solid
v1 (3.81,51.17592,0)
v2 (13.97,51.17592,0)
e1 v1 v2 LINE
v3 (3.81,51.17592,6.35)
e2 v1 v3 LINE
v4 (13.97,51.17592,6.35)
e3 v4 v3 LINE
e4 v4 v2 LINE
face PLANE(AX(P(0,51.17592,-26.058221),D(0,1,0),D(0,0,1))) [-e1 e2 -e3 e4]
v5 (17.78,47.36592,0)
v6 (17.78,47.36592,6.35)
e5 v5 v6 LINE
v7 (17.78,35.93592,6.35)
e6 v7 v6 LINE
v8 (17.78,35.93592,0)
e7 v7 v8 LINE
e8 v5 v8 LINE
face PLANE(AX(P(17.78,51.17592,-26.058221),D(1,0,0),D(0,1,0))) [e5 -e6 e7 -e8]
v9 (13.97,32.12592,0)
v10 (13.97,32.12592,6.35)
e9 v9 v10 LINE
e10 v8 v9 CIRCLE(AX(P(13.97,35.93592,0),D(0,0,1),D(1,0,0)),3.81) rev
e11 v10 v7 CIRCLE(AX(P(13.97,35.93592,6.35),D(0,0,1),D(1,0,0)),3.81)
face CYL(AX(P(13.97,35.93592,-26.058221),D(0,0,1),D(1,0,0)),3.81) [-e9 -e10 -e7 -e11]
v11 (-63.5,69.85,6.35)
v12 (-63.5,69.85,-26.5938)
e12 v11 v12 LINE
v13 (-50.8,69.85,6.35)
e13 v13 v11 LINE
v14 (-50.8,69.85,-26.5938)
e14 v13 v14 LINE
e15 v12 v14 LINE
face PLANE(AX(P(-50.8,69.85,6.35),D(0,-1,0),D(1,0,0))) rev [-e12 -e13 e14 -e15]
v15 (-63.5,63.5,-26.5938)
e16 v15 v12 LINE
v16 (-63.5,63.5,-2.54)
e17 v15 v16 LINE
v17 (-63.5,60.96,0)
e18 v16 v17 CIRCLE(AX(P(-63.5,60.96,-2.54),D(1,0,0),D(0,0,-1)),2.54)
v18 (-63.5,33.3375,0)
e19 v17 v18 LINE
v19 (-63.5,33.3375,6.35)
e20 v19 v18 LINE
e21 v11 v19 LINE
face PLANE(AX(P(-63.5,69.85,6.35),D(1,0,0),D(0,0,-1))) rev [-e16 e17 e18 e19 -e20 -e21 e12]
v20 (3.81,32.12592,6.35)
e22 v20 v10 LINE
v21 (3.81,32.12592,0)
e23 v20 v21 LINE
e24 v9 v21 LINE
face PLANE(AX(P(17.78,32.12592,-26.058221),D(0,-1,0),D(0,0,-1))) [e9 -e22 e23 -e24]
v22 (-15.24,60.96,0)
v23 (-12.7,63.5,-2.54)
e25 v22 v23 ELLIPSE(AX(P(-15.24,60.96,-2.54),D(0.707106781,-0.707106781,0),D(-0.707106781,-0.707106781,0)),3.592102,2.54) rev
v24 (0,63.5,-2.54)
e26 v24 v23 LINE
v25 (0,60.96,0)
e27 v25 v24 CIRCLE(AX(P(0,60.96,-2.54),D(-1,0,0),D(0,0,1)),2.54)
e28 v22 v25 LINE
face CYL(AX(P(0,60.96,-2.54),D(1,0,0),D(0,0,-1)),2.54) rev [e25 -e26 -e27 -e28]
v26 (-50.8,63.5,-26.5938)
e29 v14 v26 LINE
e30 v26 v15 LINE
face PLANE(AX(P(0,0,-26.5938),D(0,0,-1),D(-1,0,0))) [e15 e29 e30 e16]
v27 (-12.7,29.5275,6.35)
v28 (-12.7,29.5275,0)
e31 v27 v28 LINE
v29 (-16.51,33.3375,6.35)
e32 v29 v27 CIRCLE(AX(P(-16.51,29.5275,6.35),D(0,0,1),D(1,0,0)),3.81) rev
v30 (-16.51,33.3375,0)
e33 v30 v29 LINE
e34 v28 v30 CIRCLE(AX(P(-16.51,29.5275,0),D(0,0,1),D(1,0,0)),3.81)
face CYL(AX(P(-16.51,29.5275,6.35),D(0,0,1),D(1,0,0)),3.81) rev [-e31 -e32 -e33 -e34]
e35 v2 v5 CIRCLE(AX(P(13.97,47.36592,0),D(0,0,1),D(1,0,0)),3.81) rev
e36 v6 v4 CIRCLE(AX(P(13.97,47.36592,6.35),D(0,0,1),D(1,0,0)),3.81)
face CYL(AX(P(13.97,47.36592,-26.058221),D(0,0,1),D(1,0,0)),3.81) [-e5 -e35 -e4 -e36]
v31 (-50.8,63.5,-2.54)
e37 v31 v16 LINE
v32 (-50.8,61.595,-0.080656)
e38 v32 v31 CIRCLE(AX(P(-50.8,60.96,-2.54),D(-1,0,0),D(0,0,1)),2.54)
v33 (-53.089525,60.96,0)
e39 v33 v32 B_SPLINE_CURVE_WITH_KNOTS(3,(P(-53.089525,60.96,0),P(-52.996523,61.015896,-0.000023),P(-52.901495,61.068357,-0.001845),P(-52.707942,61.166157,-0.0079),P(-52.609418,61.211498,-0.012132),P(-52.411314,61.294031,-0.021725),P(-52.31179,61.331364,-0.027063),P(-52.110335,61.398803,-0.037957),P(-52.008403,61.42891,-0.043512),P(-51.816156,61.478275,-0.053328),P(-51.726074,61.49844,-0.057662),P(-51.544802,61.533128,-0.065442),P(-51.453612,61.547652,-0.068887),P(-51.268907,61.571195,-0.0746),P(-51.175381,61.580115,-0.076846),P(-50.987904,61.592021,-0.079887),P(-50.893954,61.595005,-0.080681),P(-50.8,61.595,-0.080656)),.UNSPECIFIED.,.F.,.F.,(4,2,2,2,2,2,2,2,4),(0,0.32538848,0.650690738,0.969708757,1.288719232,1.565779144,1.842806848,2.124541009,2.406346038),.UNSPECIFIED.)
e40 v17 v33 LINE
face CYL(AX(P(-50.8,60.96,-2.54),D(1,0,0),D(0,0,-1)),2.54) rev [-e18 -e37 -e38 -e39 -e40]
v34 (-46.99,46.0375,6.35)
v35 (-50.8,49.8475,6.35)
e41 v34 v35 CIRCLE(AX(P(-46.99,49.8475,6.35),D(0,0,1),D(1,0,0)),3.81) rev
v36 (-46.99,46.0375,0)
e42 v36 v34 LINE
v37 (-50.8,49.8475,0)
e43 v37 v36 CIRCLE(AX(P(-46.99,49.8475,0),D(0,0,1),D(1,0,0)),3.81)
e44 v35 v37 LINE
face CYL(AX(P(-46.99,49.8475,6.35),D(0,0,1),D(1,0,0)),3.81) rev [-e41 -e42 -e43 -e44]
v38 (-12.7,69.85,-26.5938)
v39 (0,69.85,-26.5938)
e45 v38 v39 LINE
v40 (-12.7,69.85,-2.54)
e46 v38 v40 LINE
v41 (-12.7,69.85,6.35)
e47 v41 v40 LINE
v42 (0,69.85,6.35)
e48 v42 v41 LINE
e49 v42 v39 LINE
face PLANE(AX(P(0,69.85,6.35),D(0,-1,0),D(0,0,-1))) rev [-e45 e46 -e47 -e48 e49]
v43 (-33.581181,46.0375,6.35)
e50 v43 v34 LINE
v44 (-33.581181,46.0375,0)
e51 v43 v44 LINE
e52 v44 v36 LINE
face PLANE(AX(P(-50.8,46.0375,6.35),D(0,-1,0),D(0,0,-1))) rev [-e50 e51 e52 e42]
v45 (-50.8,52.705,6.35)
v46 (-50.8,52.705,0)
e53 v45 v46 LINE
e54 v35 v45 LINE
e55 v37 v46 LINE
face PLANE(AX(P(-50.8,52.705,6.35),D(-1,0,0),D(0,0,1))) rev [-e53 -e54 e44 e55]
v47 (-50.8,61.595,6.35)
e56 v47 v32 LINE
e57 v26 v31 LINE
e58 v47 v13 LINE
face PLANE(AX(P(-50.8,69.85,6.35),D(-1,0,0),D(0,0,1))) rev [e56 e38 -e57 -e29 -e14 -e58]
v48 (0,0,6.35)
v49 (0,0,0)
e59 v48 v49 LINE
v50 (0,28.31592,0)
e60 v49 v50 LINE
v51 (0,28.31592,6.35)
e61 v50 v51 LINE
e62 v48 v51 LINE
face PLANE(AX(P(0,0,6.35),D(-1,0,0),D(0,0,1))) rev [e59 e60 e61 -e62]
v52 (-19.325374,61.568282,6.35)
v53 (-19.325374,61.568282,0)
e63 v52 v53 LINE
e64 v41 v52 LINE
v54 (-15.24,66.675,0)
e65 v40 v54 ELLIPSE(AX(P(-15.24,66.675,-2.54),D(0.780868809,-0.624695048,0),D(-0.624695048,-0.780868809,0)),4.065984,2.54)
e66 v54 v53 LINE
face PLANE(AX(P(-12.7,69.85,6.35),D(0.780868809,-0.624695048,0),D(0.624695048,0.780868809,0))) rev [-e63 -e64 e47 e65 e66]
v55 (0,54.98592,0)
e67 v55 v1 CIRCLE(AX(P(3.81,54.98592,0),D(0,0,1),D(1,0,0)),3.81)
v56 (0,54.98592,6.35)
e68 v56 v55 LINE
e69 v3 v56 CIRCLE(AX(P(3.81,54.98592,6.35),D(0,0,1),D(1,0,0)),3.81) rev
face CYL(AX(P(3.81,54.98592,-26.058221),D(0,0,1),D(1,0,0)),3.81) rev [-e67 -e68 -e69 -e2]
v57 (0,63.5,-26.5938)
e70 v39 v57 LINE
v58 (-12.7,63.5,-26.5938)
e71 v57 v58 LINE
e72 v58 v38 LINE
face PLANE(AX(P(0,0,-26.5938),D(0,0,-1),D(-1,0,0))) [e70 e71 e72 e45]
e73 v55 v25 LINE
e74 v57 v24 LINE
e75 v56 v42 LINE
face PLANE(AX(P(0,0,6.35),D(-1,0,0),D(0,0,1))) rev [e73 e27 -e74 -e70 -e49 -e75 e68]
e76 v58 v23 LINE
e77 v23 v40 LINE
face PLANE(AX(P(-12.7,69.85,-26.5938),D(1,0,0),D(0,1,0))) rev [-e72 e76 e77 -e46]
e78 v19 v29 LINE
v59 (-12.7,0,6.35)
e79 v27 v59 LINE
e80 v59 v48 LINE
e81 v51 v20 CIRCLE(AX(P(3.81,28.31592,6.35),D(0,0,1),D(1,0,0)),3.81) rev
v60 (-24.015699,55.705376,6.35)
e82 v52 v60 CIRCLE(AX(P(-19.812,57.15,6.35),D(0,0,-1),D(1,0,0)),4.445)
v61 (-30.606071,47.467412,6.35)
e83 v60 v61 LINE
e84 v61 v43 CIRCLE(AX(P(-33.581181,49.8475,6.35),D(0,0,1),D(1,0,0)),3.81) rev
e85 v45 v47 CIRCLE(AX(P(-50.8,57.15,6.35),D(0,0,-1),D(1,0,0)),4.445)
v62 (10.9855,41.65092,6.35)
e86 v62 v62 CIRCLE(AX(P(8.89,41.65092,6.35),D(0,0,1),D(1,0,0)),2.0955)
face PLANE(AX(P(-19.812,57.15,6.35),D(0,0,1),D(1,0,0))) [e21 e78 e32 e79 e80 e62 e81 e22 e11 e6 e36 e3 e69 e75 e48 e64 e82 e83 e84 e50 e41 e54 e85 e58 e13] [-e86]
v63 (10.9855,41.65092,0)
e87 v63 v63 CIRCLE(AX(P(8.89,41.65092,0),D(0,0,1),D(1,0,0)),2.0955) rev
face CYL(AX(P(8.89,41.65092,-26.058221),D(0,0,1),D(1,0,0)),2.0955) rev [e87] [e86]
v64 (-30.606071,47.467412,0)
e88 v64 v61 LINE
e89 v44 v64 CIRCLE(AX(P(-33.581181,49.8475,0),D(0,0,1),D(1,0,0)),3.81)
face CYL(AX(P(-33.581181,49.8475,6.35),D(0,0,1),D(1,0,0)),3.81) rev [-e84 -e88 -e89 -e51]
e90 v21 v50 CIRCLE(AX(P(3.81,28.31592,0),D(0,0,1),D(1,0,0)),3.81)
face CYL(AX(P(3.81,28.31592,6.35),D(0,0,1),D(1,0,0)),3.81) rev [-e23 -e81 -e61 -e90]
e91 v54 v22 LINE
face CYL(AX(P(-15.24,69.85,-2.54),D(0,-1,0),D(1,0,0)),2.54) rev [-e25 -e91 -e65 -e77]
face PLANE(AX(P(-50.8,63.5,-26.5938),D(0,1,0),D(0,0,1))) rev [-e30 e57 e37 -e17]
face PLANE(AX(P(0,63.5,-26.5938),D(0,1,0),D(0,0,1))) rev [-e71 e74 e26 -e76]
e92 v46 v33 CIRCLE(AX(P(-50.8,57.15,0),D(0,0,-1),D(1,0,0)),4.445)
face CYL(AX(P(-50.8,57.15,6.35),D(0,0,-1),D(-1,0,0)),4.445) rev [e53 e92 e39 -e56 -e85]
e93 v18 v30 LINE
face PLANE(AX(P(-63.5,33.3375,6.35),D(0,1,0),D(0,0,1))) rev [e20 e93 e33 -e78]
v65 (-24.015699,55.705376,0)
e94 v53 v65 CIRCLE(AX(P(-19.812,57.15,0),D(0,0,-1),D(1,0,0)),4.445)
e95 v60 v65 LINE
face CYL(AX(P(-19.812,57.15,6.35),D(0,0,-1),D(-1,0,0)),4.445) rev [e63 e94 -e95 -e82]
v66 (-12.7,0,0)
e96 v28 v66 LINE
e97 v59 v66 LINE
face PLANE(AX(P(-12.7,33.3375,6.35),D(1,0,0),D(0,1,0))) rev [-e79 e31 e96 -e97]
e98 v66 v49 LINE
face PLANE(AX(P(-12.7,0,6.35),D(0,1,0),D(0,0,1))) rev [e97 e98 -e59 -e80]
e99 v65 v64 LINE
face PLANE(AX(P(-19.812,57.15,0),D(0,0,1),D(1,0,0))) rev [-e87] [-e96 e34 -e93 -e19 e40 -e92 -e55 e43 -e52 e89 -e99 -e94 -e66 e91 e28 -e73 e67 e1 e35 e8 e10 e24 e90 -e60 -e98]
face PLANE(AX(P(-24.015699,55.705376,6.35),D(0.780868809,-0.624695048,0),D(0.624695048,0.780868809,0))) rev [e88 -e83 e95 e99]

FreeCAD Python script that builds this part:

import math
import FreeCAD as App
import Part
import Sketcher
Q = App.Units.Quantity


def edges_at(feature, points):
    """Names of the edges that pass closest to the given points."""
    edges = feature.Shape.Edges
    near = lambda p: min(range(len(edges)), key=lambda i: edges[i].distToShape(Part.Vertex(*p))[0])
    return sorted({f"Edge{near(p) + 1}" for p in points})


def add_polygon(sketch, points):
    """Adds a closed chain of lines whose ends are joined by coincident constraints."""
    first, n = sketch.GeometryCount, len(points)
    for a, b in zip(points, points[1:] + points[:1]):
        sketch.addGeometry(Part.LineSegment(App.Vector(*a, 0), App.Vector(*b, 0)), False)
    for i in range(n):
        sketch.addConstraint(Sketcher.Constraint("Coincident", first + i, 2, first + (i + 1) % n, 1))

doc = App.newDocument("Part")
body = doc.addObject("PartDesign::Body", "Body")

# Sketch on XY plane
sketch1 = doc.addObject("Sketcher::SketchObject", "Sketch")
body.addObject(sketch1)
sketch1.AttachmentSupport = (doc.XY_Plane, [""])
sketch1.MapMode = "FlatFace"
sketch1.addGeometry(Part.LineSegment(App.Vector(0, 0, 0), App.Vector(0, 69.8, 0)), False)
sketch1.addGeometry(Part.LineSegment(App.Vector(0, 69.8, 0), App.Vector(-12.7, 69.8, 0)), False)
sketch1.addGeometry(Part.LineSegment(App.Vector(-12.7, 69.8, 0), App.Vector(-19.3, 61.6, 0)), False)
sketch1.addGeometry(Part.ArcOfCircle(Part.Circle(App.Vector(-19.8, 57.1, 0), App.Vector(0, 0, 1), 4.4), math.radians(-161), math.radians(84)), False)
sketch1.addGeometry(Part.LineSegment(App.Vector(-24, 55.7, 0), App.Vector(-31.8, 46, 0)), False)
sketch1.addGeometry(Part.LineSegment(App.Vector(-31.8, 46, 0), App.Vector(-50.8, 46, 0)), False)
sketch1.addGeometry(Part.LineSegment(App.Vector(-50.8, 46, 0), App.Vector(-50.8, 52.7, 0)), False)
sketch1.addGeometry(Part.ArcOfCircle(Part.Circle(App.Vector(-50.8, 57.1, 0), App.Vector(0, 0, 1), 4.4), math.radians(90), math.radians(270)), False)
sketch1.addGeometry(Part.LineSegment(App.Vector(-50.8, 61.6, 0), App.Vector(-50.8, 69.8, 0)), False)
sketch1.addGeometry(Part.LineSegment(App.Vector(-50.8, 69.8, 0), App.Vector(-63.5, 69.8, 0)), False)
sketch1.addGeometry(Part.LineSegment(App.Vector(-63.5, 69.8, 0), App.Vector(-63.5, 33.3, 0)), False)
sketch1.addGeometry(Part.LineSegment(App.Vector(-63.5, 33.3, 0), App.Vector(-12.7, 33.3, 0)), False)
sketch1.addGeometry(Part.LineSegment(App.Vector(-12.7, 33.3, 0), App.Vector(-12.7, 0, 0)), False)
sketch1.addGeometry(Part.LineSegment(App.Vector(-12.7, 0, 0), App.Vector(0, 0, 0)), False)
sketch1.addConstraint(Sketcher.Constraint("Coincident", 0, 2, 1, 1))
sketch1.addConstraint(Sketcher.Constraint("Coincident", 1, 2, 2, 1))
sketch1.addConstraint(Sketcher.Constraint("Coincident", 2, 2, 3, 2))
sketch1.addConstraint(Sketcher.Constraint("Coincident", 3, 1, 4, 1))
sketch1.addConstraint(Sketcher.Constraint("Coincident", 4, 2, 5, 1))
sketch1.addConstraint(Sketcher.Constraint("Coincident", 5, 2, 6, 1))
sketch1.addConstraint(Sketcher.Constraint("Coincident", 6, 2, 7, 2))
sketch1.addConstraint(Sketcher.Constraint("Coincident", 7, 1, 8, 1))
sketch1.addConstraint(Sketcher.Constraint("Coincident", 8, 2, 9, 1))
sketch1.addConstraint(Sketcher.Constraint("Coincident", 9, 2, 10, 1))
sketch1.addConstraint(Sketcher.Constraint("Coincident", 10, 2, 11, 1))
sketch1.addConstraint(Sketcher.Constraint("Coincident", 11, 2, 12, 1))
sketch1.addConstraint(Sketcher.Constraint("Coincident", 12, 2, 13, 1))
sketch1.addConstraint(Sketcher.Constraint("Coincident", 13, 2, 0, 1))
sketch1.addConstraint(Sketcher.Constraint("Vertical", 0))
sketch1.addConstraint(Sketcher.Constraint("Horizontal", 1))
sketch1.addConstraint(Sketcher.Constraint("Horizontal", 5))
sketch1.addConstraint(Sketcher.Constraint("Vertical", 6))
sketch1.addConstraint(Sketcher.Constraint("Vertical", 8))
sketch1.addConstraint(Sketcher.Constraint("Horizontal", 9))
sketch1.addConstraint(Sketcher.Constraint("Vertical", 10))
sketch1.addConstraint(Sketcher.Constraint("Horizontal", 11))
sketch1.addConstraint(Sketcher.Constraint("Vertical", 12))
sketch1.addConstraint(Sketcher.Constraint("Horizontal", 13))
sketch1.addConstraint(Sketcher.Constraint("Coincident", 13, 2, -1, 1))
sketch1.addConstraint(Sketcher.Constraint("Equal", 3, 7))
sketch1.addConstraint(Sketcher.Constraint("Parallel", 2, 4))
sketch1.addConstraint(Sketcher.Constraint("Horizontal", 3, 3, 7, 3))
sketch1.addConstraint(Sketcher.Constraint("Horizontal", 1, 2, 8, 2))
sketch1.addConstraint(Sketcher.Constraint("Vertical", 7, 3, 5, 2))
sketch1.addConstraint(Sketcher.Constraint("Vertical", 6, 2, 7, 1))
sketch1.addConstraint(Sketcher.Constraint("Vertical", 1, 2, 11, 2))
sketch1.addConstraint(Sketcher.Constraint("Equal", 1, 9))
sketch1.addConstraint(Sketcher.Constraint("DistanceX", 11, 1, 11, 2, Q("2 in")))
sketch1.addConstraint(Sketcher.Constraint("DistanceX", 1, 2, 1, 1, Q("0.5 in")))
sketch1.addConstraint(Sketcher.Constraint("Radius", 3, Q("0.175 in")))
sketch1.addConstraint(Sketcher.Constraint("DistanceX", 5, 2, 5, 1, Q("0.75 in")))
sketch1.addConstraint(Sketcher.Constraint("DistanceY", 0, 1, 0, 2, Q("2.75 in")))
sketch1.addConstraint(Sketcher.Constraint("DistanceY", 3, 3, 0, 2, Q("0.5 in")))
sketch1.addConstraint(Sketcher.Constraint("DistanceY", 10, 2, 5, 2, Q("0.5 in")))
sketch1.addConstraint(Sketcher.Constraint("DistanceY", 10, 2, 10, 1, Q("1.4375 in")))
sketch1.addConstraint(Sketcher.Constraint("DistanceX", 3, 3, -1, 1, Q("0.78 in")))
sketch1.addConstraint(Sketcher.Constraint("DistanceX", 3, 1, -1, 1, Q("0.9455 in")))
pad1 = doc.addObject("PartDesign::Pad", "Pad")
body.addObject(pad1)
pad1.Profile = sketch1
pad1.Length = Q("0.25 in")

# Sketch on XY plane
sketch2 = doc.addObject("Sketcher::SketchObject", "Sketch001")
body.addObject(sketch2)
sketch2.AttachmentSupport = (doc.XY_Plane, [""])
sketch2.MapMode = "FlatFace"
sketch2.AttachmentOffset = App.Placement(App.Vector(0, 0, 0.25 * 25.4), App.Rotation())
add_polygon(sketch2, [(0, 70), (0, 64), (-13, 64), (-13, 70)])  # lines 0-3
add_polygon(sketch2, [(-51, 70), (-51, 64), (-64, 64), (-64, 70)])  # lines 4-7
sketch2.addConstraint(Sketcher.Constraint("Vertical", 0))
sketch2.addConstraint(Sketcher.Constraint("Horizontal", 1))
sketch2.addConstraint(Sketcher.Constraint("Vertical", 2))
sketch2.addConstraint(Sketcher.Constraint("Horizontal", 3))
sketch2.addConstraint(Sketcher.Constraint("Vertical", 4))
sketch2.addConstraint(Sketcher.Constraint("Horizontal", 5))
sketch2.addConstraint(Sketcher.Constraint("Vertical", 6))
sketch2.addConstraint(Sketcher.Constraint("Horizontal", 7))
sketch2.addConstraint(Sketcher.Constraint("PointOnObject", 0, 2, -2))
sketch2.addConstraint(Sketcher.Constraint("Horizontal", 1, 2, 4, 2))
sketch2.addConstraint(Sketcher.Constraint("Horizontal", 3, 2, 6, 2))
sketch2.addConstraint(Sketcher.Constraint("Equal", 3, 5))
sketch2.addConstraint(Sketcher.Constraint("DistanceX", 1, 2, 1, 1, Q("0.5 in")))
sketch2.addConstraint(Sketcher.Constraint("DistanceX", 4, 2, -1, 1, Q("2 in")))
sketch2.addConstraint(Sketcher.Constraint("DistanceY", 0, 2, 0, 1, Q("0.25 in")))
sketch2.addConstraint(Sketcher.Constraint("DistanceY", -1, 1, 0, 2, Q("2.5 in")))
pad2 = doc.addObject("PartDesign::Pad", "Pad001")
body.addObject(pad2)
pad2.Profile = sketch2
pad2.Length = Q("1.297 in")
pad2.Reversed = True
doc.recompute()

fillet = doc.addObject("PartDesign::Fillet", "Fillet")
body.addObject(fillet)
fillet.Base = (pad2, edges_at(pad2, [(-57.15, 63.5, 0), (-6.35, 63.5, 0), (-12.7, 66.675, 0)]))
fillet.Radius = Q("0.1 in")

# Sketch on XY plane
sketch3 = doc.addObject("Sketcher::SketchObject", "Sketch002")
body.addObject(sketch3)
sketch3.AttachmentSupport = (doc.XY_Plane, [""])
sketch3.MapMode = "FlatFace"
sketch3.AttachmentOffset = App.Placement(App.Vector(0, 0, 0.25 * 25.4), App.Rotation())
add_polygon(sketch3, [(0, 51.2), (0, 32.1), (17.8, 32.1), (17.8, 51.2)])  # lines 0-3
sketch3.addGeometry(Part.Circle(App.Vector(8.9, 41.7, 0), App.Vector(0, 0, 1), 2.1), False)  # 4
sketch3.addConstraint(Sketcher.Constraint("Vertical", 0))
sketch3.addConstraint(Sketcher.Constraint("Horizontal", 1))
sketch3.addConstraint(Sketcher.Constraint("Vertical", 2))
sketch3.addConstraint(Sketcher.Constraint("Horizontal", 3))
sketch3.addConstraint(Sketcher.Constraint("PointOnObject", 0, 2, -2))
sketch3.addConstraint(Sketcher.Constraint("Diameter", 4, Q("0.165 in")))
sketch3.addConstraint(Sketcher.Constraint("DistanceX", 1, 1, 1, 2, Q("0.7 in")))
sketch3.addConstraint(Sketcher.Constraint("DistanceY", 0, 2, 0, 1, Q("0.75 in")))
sketch3.addConstraint(Sketcher.Constraint("DistanceX", -1, 1, 4, 3, Q("0.35 in")))
sketch3.addConstraint(Sketcher.Constraint("DistanceY", 0, 2, 4, 3, Q("0.375 in")))
sketch3.addConstraint(Sketcher.Constraint("DistanceY", -1, 1, 4, 3, Q("1.6398 in")))
pad3 = doc.addObject("PartDesign::Pad", "Pad002")
body.addObject(pad3)
pad3.Profile = sketch3
pad3.Length = Q("0.25 in")
pad3.Reversed = True
doc.recompute()

fillet2 = doc.addObject("PartDesign::Fillet", "Fillet001")
body.addObject(fillet2)
fillet2.Base = (pad3, edges_at(pad3, [
    (17.78, 32.126, 3.175),
    (17.78, 51.176, 3.175),
    (0, 51.176, 3.175),
    (0, 32.126, 3.175),
    (-12.7, 33.337, 3.175),
    (-50.8, 46.038, 3.175),
    (-31.75, 46.038, 3.175),
]))
fillet2.Radius = Q("0.15 in")

doc.recompute()
